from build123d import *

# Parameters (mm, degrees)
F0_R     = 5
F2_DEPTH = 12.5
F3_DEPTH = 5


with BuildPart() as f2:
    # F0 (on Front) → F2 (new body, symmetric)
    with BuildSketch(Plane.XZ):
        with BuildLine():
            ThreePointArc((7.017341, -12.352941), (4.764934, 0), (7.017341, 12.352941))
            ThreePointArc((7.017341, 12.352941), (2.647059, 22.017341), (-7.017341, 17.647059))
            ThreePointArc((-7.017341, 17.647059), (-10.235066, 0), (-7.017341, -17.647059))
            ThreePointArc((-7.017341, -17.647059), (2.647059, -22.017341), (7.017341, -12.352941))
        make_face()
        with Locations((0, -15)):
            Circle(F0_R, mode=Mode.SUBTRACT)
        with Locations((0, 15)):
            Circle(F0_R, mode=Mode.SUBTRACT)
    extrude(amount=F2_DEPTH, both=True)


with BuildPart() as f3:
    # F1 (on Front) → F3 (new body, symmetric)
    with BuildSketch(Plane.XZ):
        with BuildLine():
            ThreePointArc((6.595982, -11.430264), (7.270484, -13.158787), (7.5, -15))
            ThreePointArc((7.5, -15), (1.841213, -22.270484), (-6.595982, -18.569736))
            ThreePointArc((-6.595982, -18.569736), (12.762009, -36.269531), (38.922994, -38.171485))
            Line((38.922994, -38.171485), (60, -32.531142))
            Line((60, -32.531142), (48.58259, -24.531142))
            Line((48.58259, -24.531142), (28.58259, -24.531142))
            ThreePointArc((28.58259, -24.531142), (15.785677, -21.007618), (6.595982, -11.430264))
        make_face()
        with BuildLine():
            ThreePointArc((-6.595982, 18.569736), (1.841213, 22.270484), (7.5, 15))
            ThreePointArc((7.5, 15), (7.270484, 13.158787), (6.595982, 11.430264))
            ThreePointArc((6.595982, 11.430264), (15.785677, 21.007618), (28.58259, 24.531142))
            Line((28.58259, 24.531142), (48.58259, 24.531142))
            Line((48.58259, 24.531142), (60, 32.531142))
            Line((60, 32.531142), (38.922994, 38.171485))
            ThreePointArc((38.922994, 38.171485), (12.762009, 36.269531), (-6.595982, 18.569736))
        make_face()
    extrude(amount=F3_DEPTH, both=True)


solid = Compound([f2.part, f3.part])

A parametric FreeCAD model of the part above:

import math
import FreeCAD as App
import Part
import Sketcher

doc = App.newDocument("Part")
params = doc.addObject("Spreadsheet::Sheet", "Params")
for row, (alias, value) in enumerate([
    ("sketch1_diameter", "10 mm"),
    ("sketch1_radius", "35 mm"),
    ("sketch1_radius2", "7.5 mm"),
    ("pad1_length", "25 mm"),
    ("sketch2_radius", "40.000001 mm"),
    ("sketch2_radius2", "7.5 mm"),
    ("sketch2_width", "20 mm"),
    ("pad2_length", "10 mm"),
], start=1):
    params.set(f"A{row}", alias)
    params.set(f"B{row}", "=" + value)
    params.setAlias(f"B{row}", alias)

body = doc.addObject("PartDesign::Body", "Body")

# Sketch on XZ plane
sketch1 = doc.addObject("Sketcher::SketchObject", "Sketch")
body.addObject(sketch1)
sketch1.AttachmentSupport = (doc.XZ_Plane, [""])
sketch1.MapMode = "FlatFace"
sketch1.addGeometry([
    Part.ArcOfCircle(Part.Circle(App.Vector(40, 0, 0), App.Vector(0, 0, 1), 35), math.radians(159), math.radians(201)),  # 0
    Part.ArcOfCircle(Part.Circle(App.Vector(0, 15, 0), App.Vector(0, 0, 1), 7), math.radians(-21), math.radians(159)),  # 1
    Part.ArcOfCircle(Part.Circle(App.Vector(40, 0, 0), App.Vector(0, 0, 1), 50), math.radians(159), math.radians(201)),  # 2
    Part.ArcOfCircle(Part.Circle(App.Vector(0, -15, 0), App.Vector(0, 0, 1), 7), math.radians(-159), math.radians(21)),  # 3
    Part.Circle(App.Vector(0, -15, 0), App.Vector(0, 0, 1), 5),  # 4
    Part.Circle(App.Vector(0, 15, 0), App.Vector(0, 0, 1), 5),  # 5
], False)
sketch1.addConstraint([
    Sketcher.Constraint("Tangent", 0, 1, 1, 1),
    Sketcher.Constraint("Tangent", 1, 2, 2, 1),
    Sketcher.Constraint("Tangent", 2, 2, 3, 1),
    Sketcher.Constraint("Tangent", 3, 2, 0, 2),
    Sketcher.Constraint("Coincident", 2, 3, 0, 3),
    Sketcher.Constraint("Coincident", 4, 3, 3, 3),
    Sketcher.Constraint("Coincident", 5, 3, 1, 3),
    Sketcher.Constraint("Equal", 4, 5),
    Sketcher.Constraint("Symmetric", 1, 3, 3, 3, -1, 1),
    Sketcher.Constraint("PointOnObject", 0, 3, -1),
    Sketcher.Constraint("Diameter", 4, 10.0),
    Sketcher.Constraint("Radius", 0, 35.0),
    Sketcher.Constraint("Radius", 1, 7.5),
    Sketcher.Constraint("DistanceY", -1, 1, 1, 3, 15.0),
])
sketch1.setExpression("Constraints[10]", "Params.sketch1_diameter")
sketch1.setExpression("Constraints[11]", "Params.sketch1_radius")
sketch1.setExpression("Constraints[12]", "Params.sketch1_radius2")
pad1 = doc.addObject("PartDesign::Pad", "Pad")
body.addObject(pad1)
pad1.Profile = sketch1
pad1.setExpression("Length", "Params.pad1_length")
pad1.Midplane = True
body2 = doc.addObject("PartDesign::Body", "Body001")
body2.AllowCompound = True

# Sketch on XZ plane
sketch2 = doc.addObject("Sketcher::SketchObject", "Sketch001")
body2.addObject(sketch2)
sketch2.AttachmentSupport = (doc.getObject("XZ_Plane001"), [""])
sketch2.MapMode = "FlatFace"
sketch2.addGeometry([
    Part.ArcOfCircle(Part.Circle(App.Vector(0, -15, 0), App.Vector(0, 0, 1), 7.5), math.radians(0), math.radians(28)),  # 0
    Part.ArcOfCircle(Part.Circle(App.Vector(0, -15, 0), App.Vector(0, 0, 1), 7.5), math.radians(-152), math.radians(0)),  # 1
    Part.ArcOfCircle(Part.Circle(App.Vector(28.6, 0.5, 0), App.Vector(0, 0, 1), 40), math.radians(-152), math.radians(-75)),  # 2
    Part.LineSegment(App.Vector(38.9, -38.2, 0), App.Vector(60, -32.5, 0)),  # 3
    Part.LineSegment(App.Vector(60, -32.5, 0), App.Vector(48.6, -24.5, 0)),  # 4
    Part.LineSegment(App.Vector(48.6, -24.5, 0), App.Vector(28.6, -24.5, 0)),  # 5
    Part.ArcOfCircle(Part.Circle(App.Vector(28.6, 0.5, 0), App.Vector(0, 0, 1), 25), math.radians(-152), math.radians(-90)),  # 6
    Part.ArcOfCircle(Part.Circle(App.Vector(0, 15, 0), App.Vector(0, 0, 1), 7.5), math.radians(0), math.radians(152)),  # 7
    Part.ArcOfCircle(Part.Circle(App.Vector(0, 15, 0), App.Vector(0, 0, 1), 7.5), math.radians(-28), math.radians(0)),  # 8
    Part.ArcOfCircle(Part.Circle(App.Vector(28.6, -0.5, 0), App.Vector(0, 0, 1), 25), math.radians(90), math.radians(152)),  # 9
    Part.LineSegment(App.Vector(28.6, 24.5, 0), App.Vector(48.6, 24.5, 0)),  # 10
    Part.LineSegment(App.Vector(48.6, 24.5, 0), App.Vector(60, 32.5, 0)),  # 11
    Part.LineSegment(App.Vector(60, 32.5, 0), App.Vector(38.9, 38.2, 0)),  # 12
    Part.ArcOfCircle(Part.Circle(App.Vector(28.6, -0.5, 0), App.Vector(0, 0, 1), 40), math.radians(75), math.radians(152)),  # 13
], False)
sketch2.addConstraint([
    Sketcher.Constraint("Tangent", 0, 1, 1, 2),
    Sketcher.Constraint("Tangent", 1, 1, 2, 1),
    Sketcher.Constraint("Tangent", 2, 2, 3, 1),
    Sketcher.Constraint("Coincident", 3, 2, 4, 1),
    Sketcher.Constraint("Coincident", 4, 2, 5, 1),
    Sketcher.Constraint("Tangent", 5, 2, 6, 2),
    Sketcher.Constraint("Tangent", 6, 1, 0, 2),
    Sketcher.Constraint("Tangent", 7, 1, 8, 2),
    Sketcher.Constraint("Tangent", 8, 1, 9, 2),
    Sketcher.Constraint("Tangent", 9, 1, 10, 1),
    Sketcher.Constraint("Coincident", 10, 2, 11, 1),
    Sketcher.Constraint("Coincident", 11, 2, 12, 1),
    Sketcher.Constraint("Tangent", 12, 2, 13, 1),
    Sketcher.Constraint("Tangent", 13, 2, 7, 2),
    Sketcher.Constraint("Horizontal", 5),
    Sketcher.Constraint("Horizontal", 10),
    Sketcher.Constraint("Coincident", 6, 3, 2, 3),
    Sketcher.Constraint("Coincident", 13, 3, 9, 3),
    Sketcher.Constraint("Equal", 1, 7),
    Sketcher.Constraint("Equal", 0, 8),
    Sketcher.Constraint("Equal", 6, 9),
    Sketcher.Constraint("Symmetric", 1, 3, 7, 3, -1, 1),
    Sketcher.Constraint("Symmetric", 2, 3, 9, 3, -1),
    Sketcher.Constraint("Symmetric", 3, 2, 11, 2, -1),
    Sketcher.Constraint("Horizontal", 1, 3, 0, 1),
    Sketcher.Constraint("Vertical", 4, 2, 10, 2),
    Sketcher.Constraint("Radius", 2, 40.000001),
    Sketcher.Constraint("Radius", 1, 7.5),
    Sketcher.Constraint("DistanceX", 5, 2, 5, 1, 20.0),
    Sketcher.Constraint("DistanceY", 1, 3, -1, 1, 15.0),
    Sketcher.Constraint("DistanceX", -1, 1, 3, 2, 60.0),
    Sketcher.Constraint("DistanceY", -1, 1, 7, 1, 15.0),
    Sketcher.Constraint("DistanceY", 3, 2, 2, 3, 33.000001),
    Sketcher.Constraint("DistanceY", 3, 2, 4, 2, 8.0),
    Sketcher.Constraint("DistanceX", -1, 1, 2, 3, 28.582591),
])
sketch2.setExpression("Constraints[26]", "Params.sketch2_radius")
sketch2.setExpression("Constraints[27]", "Params.sketch2_radius2")
sketch2.setExpression("Constraints[28]", "Params.sketch2_width")
pad2 = doc.addObject("PartDesign::Pad", "Pad001")
body2.addObject(pad2)
pad2.Profile = sketch2
pad2.setExpression("Length", "Params.pad2_length")
pad2.Midplane = True

doc.recompute()
